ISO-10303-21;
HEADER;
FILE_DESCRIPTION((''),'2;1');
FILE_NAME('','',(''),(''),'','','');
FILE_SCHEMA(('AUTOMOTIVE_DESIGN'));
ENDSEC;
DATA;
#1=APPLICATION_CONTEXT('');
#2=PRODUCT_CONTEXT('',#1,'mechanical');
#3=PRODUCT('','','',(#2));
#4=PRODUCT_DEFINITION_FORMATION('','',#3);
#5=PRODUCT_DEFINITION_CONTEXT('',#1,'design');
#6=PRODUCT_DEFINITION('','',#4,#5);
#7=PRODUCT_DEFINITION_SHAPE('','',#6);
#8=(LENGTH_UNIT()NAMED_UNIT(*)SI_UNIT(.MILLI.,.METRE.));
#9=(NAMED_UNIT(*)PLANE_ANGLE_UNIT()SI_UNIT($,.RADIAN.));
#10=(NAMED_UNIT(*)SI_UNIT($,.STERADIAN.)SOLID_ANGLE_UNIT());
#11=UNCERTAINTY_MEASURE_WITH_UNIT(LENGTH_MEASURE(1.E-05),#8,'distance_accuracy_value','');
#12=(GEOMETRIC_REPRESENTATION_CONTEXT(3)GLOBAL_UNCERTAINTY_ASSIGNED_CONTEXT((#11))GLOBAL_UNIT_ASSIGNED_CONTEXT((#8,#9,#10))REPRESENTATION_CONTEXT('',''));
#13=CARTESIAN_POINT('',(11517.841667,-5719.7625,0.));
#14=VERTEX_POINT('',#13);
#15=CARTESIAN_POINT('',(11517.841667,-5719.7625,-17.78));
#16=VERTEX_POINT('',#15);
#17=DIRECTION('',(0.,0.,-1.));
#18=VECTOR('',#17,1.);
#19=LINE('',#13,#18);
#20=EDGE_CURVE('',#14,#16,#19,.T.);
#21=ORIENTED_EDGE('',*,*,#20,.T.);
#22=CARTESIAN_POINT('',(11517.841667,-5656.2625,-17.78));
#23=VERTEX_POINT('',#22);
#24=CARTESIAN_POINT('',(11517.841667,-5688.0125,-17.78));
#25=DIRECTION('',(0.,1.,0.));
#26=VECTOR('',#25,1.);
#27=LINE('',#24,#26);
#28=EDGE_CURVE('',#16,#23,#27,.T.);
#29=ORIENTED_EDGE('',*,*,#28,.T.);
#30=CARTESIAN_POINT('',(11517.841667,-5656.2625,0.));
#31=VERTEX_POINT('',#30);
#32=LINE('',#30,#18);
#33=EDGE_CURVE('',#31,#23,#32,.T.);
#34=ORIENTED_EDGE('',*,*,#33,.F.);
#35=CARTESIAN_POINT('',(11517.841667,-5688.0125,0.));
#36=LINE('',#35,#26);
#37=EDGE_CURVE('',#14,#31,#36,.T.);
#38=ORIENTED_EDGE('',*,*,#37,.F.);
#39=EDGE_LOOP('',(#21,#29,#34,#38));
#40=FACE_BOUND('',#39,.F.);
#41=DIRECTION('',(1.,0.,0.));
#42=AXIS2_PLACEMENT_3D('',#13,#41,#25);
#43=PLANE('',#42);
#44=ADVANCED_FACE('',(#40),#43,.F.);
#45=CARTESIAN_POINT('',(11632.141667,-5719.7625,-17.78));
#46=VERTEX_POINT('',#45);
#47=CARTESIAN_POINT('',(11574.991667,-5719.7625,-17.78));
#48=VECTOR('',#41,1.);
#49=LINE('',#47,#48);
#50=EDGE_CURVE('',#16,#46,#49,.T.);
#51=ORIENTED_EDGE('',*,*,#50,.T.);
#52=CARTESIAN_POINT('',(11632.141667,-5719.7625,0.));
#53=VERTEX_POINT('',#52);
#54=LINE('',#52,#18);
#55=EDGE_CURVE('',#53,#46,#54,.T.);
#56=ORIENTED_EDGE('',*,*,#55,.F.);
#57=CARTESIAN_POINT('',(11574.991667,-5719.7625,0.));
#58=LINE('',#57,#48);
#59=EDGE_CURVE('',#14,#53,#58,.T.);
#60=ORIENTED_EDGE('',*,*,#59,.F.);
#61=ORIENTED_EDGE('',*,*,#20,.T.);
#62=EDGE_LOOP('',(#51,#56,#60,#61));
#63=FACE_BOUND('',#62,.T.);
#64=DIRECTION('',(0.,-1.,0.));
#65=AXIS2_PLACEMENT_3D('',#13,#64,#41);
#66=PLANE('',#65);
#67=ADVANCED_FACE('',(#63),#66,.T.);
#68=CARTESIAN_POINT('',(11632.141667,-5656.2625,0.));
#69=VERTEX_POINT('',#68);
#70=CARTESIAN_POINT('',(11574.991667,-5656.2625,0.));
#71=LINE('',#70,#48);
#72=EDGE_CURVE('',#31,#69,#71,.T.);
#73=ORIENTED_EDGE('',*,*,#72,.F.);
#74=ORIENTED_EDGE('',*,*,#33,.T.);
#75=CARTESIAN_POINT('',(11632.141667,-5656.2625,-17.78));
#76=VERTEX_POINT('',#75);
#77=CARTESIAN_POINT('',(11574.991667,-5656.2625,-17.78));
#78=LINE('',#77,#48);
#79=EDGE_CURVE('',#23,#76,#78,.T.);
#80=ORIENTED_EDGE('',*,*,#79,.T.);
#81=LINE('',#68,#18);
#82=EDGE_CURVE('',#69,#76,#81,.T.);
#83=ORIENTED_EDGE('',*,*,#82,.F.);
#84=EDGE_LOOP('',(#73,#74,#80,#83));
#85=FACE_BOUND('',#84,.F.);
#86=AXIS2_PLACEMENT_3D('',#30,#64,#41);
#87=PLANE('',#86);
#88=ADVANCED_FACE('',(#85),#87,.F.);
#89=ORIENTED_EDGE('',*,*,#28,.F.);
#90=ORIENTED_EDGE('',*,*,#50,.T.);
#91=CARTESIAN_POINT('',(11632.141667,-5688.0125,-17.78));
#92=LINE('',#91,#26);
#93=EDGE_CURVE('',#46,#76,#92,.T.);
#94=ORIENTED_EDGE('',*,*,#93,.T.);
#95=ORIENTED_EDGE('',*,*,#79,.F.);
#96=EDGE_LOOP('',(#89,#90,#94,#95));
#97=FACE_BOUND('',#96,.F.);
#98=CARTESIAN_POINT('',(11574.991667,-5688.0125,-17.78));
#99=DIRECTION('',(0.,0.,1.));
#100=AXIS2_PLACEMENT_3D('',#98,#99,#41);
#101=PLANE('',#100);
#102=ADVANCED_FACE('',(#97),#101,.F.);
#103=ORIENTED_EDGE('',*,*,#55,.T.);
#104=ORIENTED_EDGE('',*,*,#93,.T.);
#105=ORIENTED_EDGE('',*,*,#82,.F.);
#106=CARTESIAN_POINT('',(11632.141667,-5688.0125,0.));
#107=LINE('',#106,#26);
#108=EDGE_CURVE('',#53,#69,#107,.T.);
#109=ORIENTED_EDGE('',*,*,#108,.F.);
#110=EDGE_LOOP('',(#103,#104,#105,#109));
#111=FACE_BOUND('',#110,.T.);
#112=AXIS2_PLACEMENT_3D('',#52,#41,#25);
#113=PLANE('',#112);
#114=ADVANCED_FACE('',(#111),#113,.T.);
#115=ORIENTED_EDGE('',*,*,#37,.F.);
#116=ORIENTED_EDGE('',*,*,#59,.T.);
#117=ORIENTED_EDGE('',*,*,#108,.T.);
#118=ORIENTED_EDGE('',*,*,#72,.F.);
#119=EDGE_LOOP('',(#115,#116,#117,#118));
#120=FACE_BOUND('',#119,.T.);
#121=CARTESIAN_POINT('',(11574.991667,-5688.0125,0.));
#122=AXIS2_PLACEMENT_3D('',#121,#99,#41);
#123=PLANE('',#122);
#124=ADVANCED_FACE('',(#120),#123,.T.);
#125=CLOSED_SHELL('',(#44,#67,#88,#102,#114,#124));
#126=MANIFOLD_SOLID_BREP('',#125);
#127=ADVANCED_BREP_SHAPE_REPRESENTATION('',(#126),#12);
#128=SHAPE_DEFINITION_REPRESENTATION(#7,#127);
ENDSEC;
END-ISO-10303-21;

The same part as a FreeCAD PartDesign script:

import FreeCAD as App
import Part
import Sketcher
Q = App.Units.Quantity


def add_polygon(sketch, points):
    """Adds a closed chain of lines whose ends are joined by coincident constraints."""
    first, n = sketch.GeometryCount, len(points)
    for a, b in zip(points, points[1:] + points[:1]):
        sketch.addGeometry(Part.LineSegment(App.Vector(*a, 0), App.Vector(*b, 0)), False)
    for i in range(n):
        sketch.addConstraint(Sketcher.Constraint("Coincident", first + i, 2, first + (i + 1) % n, 1))

doc = App.newDocument("Part")
body = doc.addObject("PartDesign::Body", "Body")

sketch1 = body.newObject("Sketcher::SketchObject", "Sketch")
sketch1.AttachmentSupport = (doc.getObject("XY_Plane"), [""])
sketch1.MapMode = "FlatFace"
add_polygon(sketch1, [(11517.841667, -5656.2625), (11517.841667, -5719.7625), (11632.141667, -5719.7625), (11632.141667, -5656.2625)])
sketch1.addConstraint([
    Sketcher.Constraint("Vertical", 0),
    Sketcher.Constraint("Horizontal", 1),
    Sketcher.Constraint("Vertical", 2),
    Sketcher.Constraint("Horizontal", 3),
    Sketcher.Constraint("DistanceX", 1, 1, 1, 2, Q("4.5 in")),
    Sketcher.Constraint("DistanceY", 0, 2, 0, 1, Q("2.5 in")),
    Sketcher.Constraint("DistanceY", 0, 2, -1, 1, Q("225.1875 in")),
    Sketcher.Constraint("DistanceX", -1, 1, 0, 2, 11517.841667),
])
pad1 = body.newObject("PartDesign::Pad", "Pad")
pad1.Profile = sketch1
pad1.Length = Q("0.7 in")
pad1.Reversed = True

doc.recompute()
